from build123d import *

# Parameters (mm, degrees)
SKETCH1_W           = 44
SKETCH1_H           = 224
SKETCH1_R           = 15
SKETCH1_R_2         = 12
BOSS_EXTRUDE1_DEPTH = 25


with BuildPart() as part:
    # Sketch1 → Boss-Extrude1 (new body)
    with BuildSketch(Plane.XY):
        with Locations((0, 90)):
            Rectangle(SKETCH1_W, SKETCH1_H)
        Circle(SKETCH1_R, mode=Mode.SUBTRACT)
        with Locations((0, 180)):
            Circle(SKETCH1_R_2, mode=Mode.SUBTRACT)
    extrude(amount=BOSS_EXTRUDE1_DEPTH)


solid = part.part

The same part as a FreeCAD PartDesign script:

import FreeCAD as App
import Part
import Sketcher

V = App.Vector
Q = App.Units.Quantity


def add_polygon(sketch, points):
    """Adds a closed chain of lines whose ends are joined by coincident constraints."""
    first, n = sketch.GeometryCount, len(points)
    for a, b in zip(points, points[1:] + points[:1]):
        sketch.addGeometry(Part.LineSegment(App.Vector(*a, 0), App.Vector(*b, 0)), False)
    for i in range(n):
        sketch.addConstraint(Sketcher.Constraint("Coincident", first + i, 2, first + (i + 1) % n, 1))

doc = App.newDocument("Part")
body = doc.addObject("PartDesign::Body", "Body")

# Sketch on XY plane
sketch1 = doc.addObject("Sketcher::SketchObject", "Sketch")
body.addObject(sketch1)
sketch1.AttachmentSupport = (doc.XY_Plane, [""])
sketch1.MapMode = "FlatFace"
add_polygon(sketch1, [(-22, 202), (-22, -22), (22, -22), (22, 202)])  # lines 0-3
sketch1.addGeometry(Part.Circle(V(0, 0, 0), V(0, 0, 1), 15), False)  # 4
sketch1.addGeometry(Part.Circle(V(0, 180, 0), V(0, 0, 1), 12), False)  # 5
sketch1.addConstraint(Sketcher.Constraint("Vertical", 0))
sketch1.addConstraint(Sketcher.Constraint("Horizontal", 1))
sketch1.addConstraint(Sketcher.Constraint("Vertical", 2))
sketch1.addConstraint(Sketcher.Constraint("Horizontal", 3))
sketch1.addConstraint(Sketcher.Constraint("Coincident", 4, 3, -1, 1))
sketch1.addConstraint(Sketcher.Constraint("PointOnObject", 5, 3, -2))
sketch1.addConstraint(Sketcher.Constraint("Diameter", 4, Q("30 mm")))
sketch1.addConstraint(Sketcher.Constraint("Diameter", 5, Q("24 mm")))
sketch1.addConstraint(Sketcher.Constraint("DistanceX", 1, 1, 1, 2, Q("44 mm")))
sketch1.addConstraint(Sketcher.Constraint("DistanceY", 0, 2, 0, 1, Q("224 mm")))
sketch1.addConstraint(Sketcher.Constraint("DistanceY", -1, 1, 5, 3, Q("180 mm")))
sketch1.addConstraint(Sketcher.Constraint("DistanceX", 0, 2, -1, 1, Q("22 mm")))
sketch1.addConstraint(Sketcher.Constraint("DistanceY", 0, 2, -1, 1, Q("22 mm")))
pad1 = doc.addObject("PartDesign::Pad", "Pad")
body.addObject(pad1)
pad1.Profile = sketch1
pad1.Length = 25

doc.recompute()
